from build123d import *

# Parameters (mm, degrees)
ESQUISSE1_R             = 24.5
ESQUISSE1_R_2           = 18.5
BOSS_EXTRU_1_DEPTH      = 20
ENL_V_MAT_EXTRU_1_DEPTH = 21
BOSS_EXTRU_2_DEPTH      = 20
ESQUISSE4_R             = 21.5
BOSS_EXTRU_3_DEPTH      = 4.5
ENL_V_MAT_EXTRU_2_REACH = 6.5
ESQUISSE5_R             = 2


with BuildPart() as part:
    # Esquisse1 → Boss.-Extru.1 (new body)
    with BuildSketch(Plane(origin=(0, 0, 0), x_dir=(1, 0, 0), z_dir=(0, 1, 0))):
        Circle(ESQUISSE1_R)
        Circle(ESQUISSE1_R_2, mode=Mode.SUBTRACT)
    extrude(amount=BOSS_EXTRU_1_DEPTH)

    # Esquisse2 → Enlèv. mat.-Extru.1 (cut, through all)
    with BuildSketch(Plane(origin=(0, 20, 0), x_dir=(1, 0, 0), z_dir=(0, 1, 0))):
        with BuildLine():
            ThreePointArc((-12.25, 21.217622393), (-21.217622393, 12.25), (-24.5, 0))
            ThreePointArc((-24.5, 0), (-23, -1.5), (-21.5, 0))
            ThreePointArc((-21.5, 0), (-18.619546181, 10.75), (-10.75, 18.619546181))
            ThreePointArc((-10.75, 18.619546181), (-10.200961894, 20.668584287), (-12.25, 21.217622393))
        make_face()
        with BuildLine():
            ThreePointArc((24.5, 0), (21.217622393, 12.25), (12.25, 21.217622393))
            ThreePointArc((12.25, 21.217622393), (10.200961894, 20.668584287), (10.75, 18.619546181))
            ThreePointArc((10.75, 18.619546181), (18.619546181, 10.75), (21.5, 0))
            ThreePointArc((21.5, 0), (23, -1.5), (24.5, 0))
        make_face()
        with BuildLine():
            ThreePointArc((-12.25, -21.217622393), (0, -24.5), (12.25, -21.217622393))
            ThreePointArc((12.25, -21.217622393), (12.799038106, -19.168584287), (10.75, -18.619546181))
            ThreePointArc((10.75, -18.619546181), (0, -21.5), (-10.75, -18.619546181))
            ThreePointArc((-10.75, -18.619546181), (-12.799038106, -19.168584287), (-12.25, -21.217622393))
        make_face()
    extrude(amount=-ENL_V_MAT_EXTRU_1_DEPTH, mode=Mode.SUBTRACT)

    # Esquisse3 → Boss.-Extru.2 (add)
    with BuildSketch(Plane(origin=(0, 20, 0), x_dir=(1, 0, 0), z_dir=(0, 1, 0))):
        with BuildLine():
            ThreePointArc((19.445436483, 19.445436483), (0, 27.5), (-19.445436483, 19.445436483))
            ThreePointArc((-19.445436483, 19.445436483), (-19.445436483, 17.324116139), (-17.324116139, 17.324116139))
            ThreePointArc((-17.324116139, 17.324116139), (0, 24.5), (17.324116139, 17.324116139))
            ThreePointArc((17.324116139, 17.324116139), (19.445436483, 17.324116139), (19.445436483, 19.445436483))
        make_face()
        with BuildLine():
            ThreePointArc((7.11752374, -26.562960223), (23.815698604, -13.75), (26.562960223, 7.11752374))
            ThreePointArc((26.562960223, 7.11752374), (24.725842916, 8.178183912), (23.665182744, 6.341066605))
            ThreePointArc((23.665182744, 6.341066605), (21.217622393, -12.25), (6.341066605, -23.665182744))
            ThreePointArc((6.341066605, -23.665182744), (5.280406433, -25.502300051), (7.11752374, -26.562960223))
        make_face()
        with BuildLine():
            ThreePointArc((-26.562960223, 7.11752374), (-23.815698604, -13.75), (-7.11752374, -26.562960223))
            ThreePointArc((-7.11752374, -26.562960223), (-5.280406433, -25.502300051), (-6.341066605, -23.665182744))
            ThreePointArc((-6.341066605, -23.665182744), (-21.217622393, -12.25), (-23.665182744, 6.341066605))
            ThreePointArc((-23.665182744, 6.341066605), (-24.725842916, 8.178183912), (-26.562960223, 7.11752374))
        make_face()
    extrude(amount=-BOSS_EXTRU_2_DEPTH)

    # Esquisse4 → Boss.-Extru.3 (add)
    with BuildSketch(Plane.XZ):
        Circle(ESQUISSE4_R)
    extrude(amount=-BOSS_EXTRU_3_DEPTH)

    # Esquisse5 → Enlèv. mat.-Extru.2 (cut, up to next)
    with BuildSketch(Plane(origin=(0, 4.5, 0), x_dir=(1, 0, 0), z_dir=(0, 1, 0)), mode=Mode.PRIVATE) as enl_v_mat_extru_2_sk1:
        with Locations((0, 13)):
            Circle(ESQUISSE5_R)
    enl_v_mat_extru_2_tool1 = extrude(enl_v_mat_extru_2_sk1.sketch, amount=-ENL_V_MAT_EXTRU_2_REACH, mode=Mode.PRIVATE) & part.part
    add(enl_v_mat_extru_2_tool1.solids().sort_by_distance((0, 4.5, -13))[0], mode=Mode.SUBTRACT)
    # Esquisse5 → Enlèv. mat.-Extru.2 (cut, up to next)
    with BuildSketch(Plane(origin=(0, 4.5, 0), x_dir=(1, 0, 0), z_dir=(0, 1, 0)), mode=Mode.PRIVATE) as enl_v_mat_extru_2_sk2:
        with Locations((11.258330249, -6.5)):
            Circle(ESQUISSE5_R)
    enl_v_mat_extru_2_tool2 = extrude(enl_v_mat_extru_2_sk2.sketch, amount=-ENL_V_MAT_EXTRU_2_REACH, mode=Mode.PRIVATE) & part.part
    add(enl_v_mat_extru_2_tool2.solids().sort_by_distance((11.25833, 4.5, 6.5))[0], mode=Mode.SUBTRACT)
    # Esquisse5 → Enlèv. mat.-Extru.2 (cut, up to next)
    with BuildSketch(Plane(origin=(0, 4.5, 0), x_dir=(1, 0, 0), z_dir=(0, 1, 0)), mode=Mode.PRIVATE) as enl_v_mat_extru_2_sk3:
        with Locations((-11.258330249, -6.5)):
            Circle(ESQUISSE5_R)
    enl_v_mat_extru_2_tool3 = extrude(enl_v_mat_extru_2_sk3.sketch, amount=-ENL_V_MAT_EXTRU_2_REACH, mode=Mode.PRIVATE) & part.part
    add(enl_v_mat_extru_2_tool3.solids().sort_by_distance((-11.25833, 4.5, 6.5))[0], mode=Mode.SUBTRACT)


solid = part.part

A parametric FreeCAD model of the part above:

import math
import FreeCAD as App
import Part
import Sketcher
Q = App.Units.Quantity

doc = App.newDocument("Part")
params = doc.addObject("Spreadsheet::Sheet", "Params")
for row, (alias, value) in enumerate([
    ("sketch1_diameter", "49 mm"),
    ("sketch1_diameter2", "37 mm"),
    ("pad1_length", "20 mm"),
    ("sketch2_radius", "24.5 mm"),
    ("sketch2_radius2", "1.5 mm"),
    ("sketch3_radius", "27.5 mm"),
    ("sketch3_radius2", "1.5 mm"),
    ("pad2_length", "20 mm"),
    ("sketch4_diameter", "43 mm"),
    ("pad3_length", "4.5 mm"),
    ("sketch5_diameter", "4 mm"),
    ("sketch6_diameter", "4 mm"),
    ("sketch7_diameter", "4 mm"),
], start=1):
    params.set(f"A{row}", alias)
    params.set(f"B{row}", "=" + value)
    params.setAlias(f"B{row}", alias)

body = doc.addObject("PartDesign::Body", "Body")

# Sketch on XZ plane
sketch1 = body.newObject("Sketcher::SketchObject", "Sketch")
sketch1.AttachmentSupport = (doc.getObject("XZ_Plane"), [""])
sketch1.MapMode = "FlatFace"
sketch1.addGeometry(Part.Circle(App.Vector(0, 0, 0), App.Vector(0, 0, 1), 24), False)
sketch1.addGeometry(Part.Circle(App.Vector(0, 0, 0), App.Vector(0, 0, 1), 18), False)
sketch1.addConstraint(Sketcher.Constraint("Coincident", 0, 3, -1, 1))
sketch1.addConstraint(Sketcher.Constraint("Coincident", 1, 3, -1, 1))
sketch1.addConstraint(Sketcher.Constraint("Diameter", 0, Q("49 mm")))
sketch1.addConstraint(Sketcher.Constraint("Diameter", 1, Q("37 mm")))
sketch1.setExpression("Constraints[2]", "Params.sketch1_diameter")
sketch1.setExpression("Constraints[3]", "Params.sketch1_diameter2")
pad1 = body.newObject("PartDesign::Pad", "Pad")
pad1.Profile = sketch1
pad1.setExpression("Length", "Params.pad1_length")
pad1.Reversed = True

# Sketch on XZ plane
sketch2 = body.newObject("Sketcher::SketchObject", "Sketch001")
sketch2.AttachmentSupport = (doc.getObject("XZ_Plane"), [""])
sketch2.MapMode = "FlatFace"
sketch2.AttachmentOffset = App.Placement(App.Vector(0, 0, -20), App.Rotation())
sketch2.addGeometry(Part.ArcOfCircle(Part.Circle(App.Vector(0, 0, 0), App.Vector(0, 0, 1), 24.5), math.radians(180), math.radians(240)), False)
sketch2.addGeometry(Part.ArcOfCircle(Part.Circle(App.Vector(-23, 0, 0), App.Vector(0, 0, 1), 1.5), math.radians(0), math.radians(180)), False)
sketch2.addGeometry(Part.ArcOfCircle(Part.Circle(App.Vector(0, 0, 0), App.Vector(0, 0, 1), 21.5), math.radians(-180), math.radians(-120)), False)
sketch2.addGeometry(Part.ArcOfCircle(Part.Circle(App.Vector(-11.5, -19.9, 0), App.Vector(0, 0, 1), 1.5), math.radians(-120), math.radians(60)), False)
sketch2.addGeometry(Part.ArcOfCircle(Part.Circle(App.Vector(0, 0, 0), App.Vector(0, 0, 1), 24.5), math.radians(-60), math.radians(0)), False)
sketch2.addGeometry(Part.ArcOfCircle(Part.Circle(App.Vector(11.5, -19.9, 0), App.Vector(0, 0, 1), 1.5), math.radians(120), math.radians(300)), False)
sketch2.addGeometry(Part.ArcOfCircle(Part.Circle(App.Vector(0, 0, 0), App.Vector(0, 0, 1), 21.5), math.radians(-60), math.radians(0)), False)
sketch2.addGeometry(Part.ArcOfCircle(Part.Circle(App.Vector(23, 0, 0), App.Vector(0, 0, 1), 1.5), math.radians(0), math.radians(180)), False)
sketch2.addGeometry(Part.ArcOfCircle(Part.Circle(App.Vector(0, 0, 0), App.Vector(0, 0, 1), 24.5), math.radians(60), math.radians(120)), False)
sketch2.addGeometry(Part.ArcOfCircle(Part.Circle(App.Vector(11.5, 19.9, 0), App.Vector(0, 0, 1), 1.5), math.radians(-120), math.radians(60)), False)
sketch2.addGeometry(Part.ArcOfCircle(Part.Circle(App.Vector(0, 0, 0), App.Vector(0, 0, 1), 21.5), math.radians(60), math.radians(120)), False)
sketch2.addGeometry(Part.ArcOfCircle(Part.Circle(App.Vector(-11.5, 19.9, 0), App.Vector(0, 0, 1), 1.5), math.radians(120), math.radians(300)), False)
sketch2.addConstraint(Sketcher.Constraint("Tangent", 0, 1, 1, 2))
sketch2.addConstraint(Sketcher.Constraint("Tangent", 1, 1, 2, 1))
sketch2.addConstraint(Sketcher.Constraint("Tangent", 2, 2, 3, 2))
sketch2.addConstraint(Sketcher.Constraint("Tangent", 3, 1, 0, 2))
sketch2.addConstraint(Sketcher.Constraint("Tangent", 4, 1, 5, 2))
sketch2.addConstraint(Sketcher.Constraint("Tangent", 5, 1, 6, 1))
sketch2.addConstraint(Sketcher.Constraint("Tangent", 6, 2, 7, 2))
sketch2.addConstraint(Sketcher.Constraint("Tangent", 7, 1, 4, 2))
sketch2.addConstraint(Sketcher.Constraint("Tangent", 8, 1, 9, 2))
sketch2.addConstraint(Sketcher.Constraint("Tangent", 9, 1, 10, 1))
sketch2.addConstraint(Sketcher.Constraint("Tangent", 10, 2, 11, 2))
sketch2.addConstraint(Sketcher.Constraint("Tangent", 11, 1, 8, 2))
sketch2.addConstraint(Sketcher.Constraint("Coincident", 0, 3, -1, 1))
sketch2.addConstraint(Sketcher.Constraint("Coincident", 2, 3, -1, 1))
sketch2.addConstraint(Sketcher.Constraint("Coincident", 4, 3, -1, 1))
sketch2.addConstraint(Sketcher.Constraint("Coincident", 6, 3, -1, 1))
sketch2.addConstraint(Sketcher.Constraint("Coincident", 8, 3, -1, 1))
sketch2.addConstraint(Sketcher.Constraint("Coincident", 10, 3, -1, 1))
sketch2.addConstraint(Sketcher.Constraint("Equal", 0, 4))
sketch2.addConstraint(Sketcher.Constraint("Equal", 3, 5))
sketch2.addConstraint(Sketcher.Constraint("Equal", 4, 8))
sketch2.addConstraint(Sketcher.Constraint("Equal", 7, 9))
sketch2.addConstraint(Sketcher.Constraint("PointOnObject", 1, 3, -1))
sketch2.addConstraint(Sketcher.Constraint("PointOnObject", 7, 3, -1))
sketch2.addConstraint(Sketcher.Constraint("Horizontal", 3, 3, 5, 3))
sketch2.addConstraint(Sketcher.Constraint("Horizontal", 9, 3, 11, 3))
sketch2.addConstraint(Sketcher.Constraint("Vertical", 5, 3, 9, 3))
sketch2.addConstraint(Sketcher.Constraint("Radius", 0, Q("24.5 mm")))
sketch2.addConstraint(Sketcher.Constraint("Radius", 1, Q("1.5 mm")))
sketch2.addConstraint(Sketcher.Constraint("DistanceX", 3, 3, 5, 3, Q("23 mm")))
sketch2.setExpression("Constraints[27]", "Params.sketch2_radius")
sketch2.setExpression("Constraints[28]", "Params.sketch2_radius2")
pocket1 = body.newObject("PartDesign::Pocket", "Pocket")
pocket1.Profile = sketch2
pocket1.Type = "ThroughAll"
pocket1.Reversed = True

# Sketch on XZ plane
sketch3 = body.newObject("Sketcher::SketchObject", "Sketch002")
sketch3.AttachmentSupport = (doc.getObject("XZ_Plane"), [""])
sketch3.MapMode = "FlatFace"
sketch3.AttachmentOffset = App.Placement(App.Vector(0, 0, -20), App.Rotation())
sketch3.addGeometry(Part.ArcOfCircle(Part.Circle(App.Vector(0, 0, 0), App.Vector(0, 0, 1), 27.5), math.radians(-135), math.radians(-45)), False)
sketch3.addGeometry(Part.ArcOfCircle(Part.Circle(App.Vector(-18.4, -18.4, 0), App.Vector(0, 0, 1), 1.5), math.radians(45), math.radians(225)), False)
sketch3.addGeometry(Part.ArcOfCircle(Part.Circle(App.Vector(0, 0, 0), App.Vector(0, 0, 1), 24.5), math.radians(-135), math.radians(-45)), False)
sketch3.addGeometry(Part.ArcOfCircle(Part.Circle(App.Vector(18.4, -18.4, 0), App.Vector(0, 0, 1), 1.5), math.radians(-45), math.radians(135)), False)
sketch3.addGeometry(Part.ArcOfCircle(Part.Circle(App.Vector(0, 0, 0), App.Vector(0, 0, 1), 27.5), math.radians(-15), math.radians(75)), False)
sketch3.addGeometry(Part.ArcOfCircle(Part.Circle(App.Vector(25.1, -6.7, 0), App.Vector(0, 0, 1), 1.5), math.radians(165), math.radians(345)), False)
sketch3.addGeometry(Part.ArcOfCircle(Part.Circle(App.Vector(0, 0, 0), App.Vector(0, 0, 1), 24.5), math.radians(-15), math.radians(75)), False)
sketch3.addGeometry(Part.ArcOfCircle(Part.Circle(App.Vector(6.7, 25.1, 0), App.Vector(0, 0, 1), 1.5), math.radians(75), math.radians(255)), False)
sketch3.addGeometry(Part.ArcOfCircle(Part.Circle(App.Vector(0, 0, 0), App.Vector(0, 0, 1), 27.5), math.radians(105), math.radians(195)), False)
sketch3.addGeometry(Part.ArcOfCircle(Part.Circle(App.Vector(-6.7, 25.1, 0), App.Vector(0, 0, 1), 1.5), math.radians(-75), math.radians(105)), False)
sketch3.addGeometry(Part.ArcOfCircle(Part.Circle(App.Vector(0, 0, 0), App.Vector(0, 0, 1), 24.5), math.radians(105), math.radians(195)), False)
sketch3.addGeometry(Part.ArcOfCircle(Part.Circle(App.Vector(-25.1, -6.7, 0), App.Vector(0, 0, 1), 1.5), math.radians(-165), math.radians(15)), False)
sketch3.addConstraint(Sketcher.Constraint("Tangent", 0, 1, 1, 2))
sketch3.addConstraint(Sketcher.Constraint("Tangent", 1, 1, 2, 1))
sketch3.addConstraint(Sketcher.Constraint("Tangent", 2, 2, 3, 2))
sketch3.addConstraint(Sketcher.Constraint("Tangent", 3, 1, 0, 2))
sketch3.addConstraint(Sketcher.Constraint("Tangent", 4, 1, 5, 2))
sketch3.addConstraint(Sketcher.Constraint("Tangent", 5, 1, 6, 1))
sketch3.addConstraint(Sketcher.Constraint("Tangent", 6, 2, 7, 2))
sketch3.addConstraint(Sketcher.Constraint("Tangent", 7, 1, 4, 2))
sketch3.addConstraint(Sketcher.Constraint("Tangent", 8, 1, 9, 2))
sketch3.addConstraint(Sketcher.Constraint("Tangent", 9, 1, 10, 1))
sketch3.addConstraint(Sketcher.Constraint("Tangent", 10, 2, 11, 2))
sketch3.addConstraint(Sketcher.Constraint("Tangent", 11, 1, 8, 2))
sketch3.addConstraint(Sketcher.Constraint("Coincident", 0, 3, -1, 1))
sketch3.addConstraint(Sketcher.Constraint("Coincident", 2, 3, -1, 1))
sketch3.addConstraint(Sketcher.Constraint("Coincident", 4, 3, -1, 1))
sketch3.addConstraint(Sketcher.Constraint("Coincident", 6, 3, -1, 1))
sketch3.addConstraint(Sketcher.Constraint("Coincident", 8, 3, -1, 1))
sketch3.addConstraint(Sketcher.Constraint("Coincident", 10, 3, -1, 1))
sketch3.addConstraint(Sketcher.Constraint("Equal", 0, 4))
sketch3.addConstraint(Sketcher.Constraint("Equal", 3, 5))
sketch3.addConstraint(Sketcher.Constraint("Equal", 4, 8))
sketch3.addConstraint(Sketcher.Constraint("Equal", 7, 9))
sketch3.addConstraint(Sketcher.Constraint("Horizontal", 1, 3, 3, 3))
sketch3.addConstraint(Sketcher.Constraint("Horizontal", 7, 3, 9, 3))
sketch3.addConstraint(Sketcher.Constraint("Horizontal", 5, 3, 11, 3))
sketch3.addConstraint(Sketcher.Constraint("Radius", 0, Q("27.5 mm")))
sketch3.addConstraint(Sketcher.Constraint("Radius", 1, Q("1.5 mm")))
sketch3.addConstraint(Sketcher.Constraint("DistanceX", -1, 1, 5, 3, Q("25.114071 mm")))
sketch3.addConstraint(Sketcher.Constraint("DistanceY", -1, 1, 7, 3, Q("25.114071 mm")))
sketch3.addConstraint(Sketcher.Constraint("DistanceY", 3, 3, 5, 3, Q("11.655481 mm")))
sketch3.setExpression("Constraints[25]", "Params.sketch3_radius")
sketch3.setExpression("Constraints[26]", "Params.sketch3_radius2")
pad2 = body.newObject("PartDesign::Pad", "Pad001")
pad2.Profile = sketch3
pad2.setExpression("Length", "Params.pad2_length")

# Sketch on XZ plane
sketch4 = body.newObject("Sketcher::SketchObject", "Sketch003")
sketch4.AttachmentSupport = (doc.getObject("XZ_Plane"), [""])
sketch4.MapMode = "FlatFace"
sketch4.addGeometry(Part.Circle(App.Vector(0, 0, 0), App.Vector(0, 0, 1), 22), False)
sketch4.addConstraint(Sketcher.Constraint("Coincident", 0, 3, -1, 1))
sketch4.addConstraint(Sketcher.Constraint("Diameter", 0, Q("43 mm")))
sketch4.setExpression("Constraints[1]", "Params.sketch4_diameter")
pad3 = body.newObject("PartDesign::Pad", "Pad002")
pad3.Profile = sketch4
pad3.setExpression("Length", "Params.pad3_length")
pad3.Reversed = True

# Sketch on XZ plane
sketch5 = body.newObject("Sketcher::SketchObject", "Sketch004")
sketch5.AttachmentSupport = (doc.getObject("XZ_Plane"), [""])
sketch5.MapMode = "FlatFace"
sketch5.AttachmentOffset = App.Placement(App.Vector(0, 0, -4.5), App.Rotation())
sketch5.addGeometry(Part.Circle(App.Vector(0, -13, 0), App.Vector(0, 0, 1), 2), False)
sketch5.addConstraint(Sketcher.Constraint("PointOnObject", 0, 3, -2))
sketch5.addConstraint(Sketcher.Constraint("Diameter", 0, Q("4 mm")))
sketch5.addConstraint(Sketcher.Constraint("DistanceY", 0, 3, -1, 1, Q("13 mm")))
sketch5.setExpression("Constraints[1]", "Params.sketch5_diameter")
pocket2 = body.newObject("PartDesign::Pocket", "Pocket001")
pocket2.Profile = sketch5
pocket2.Type = "UpToFirst"
pocket2.Reversed = True

# Sketch on XZ plane
sketch6 = body.newObject("Sketcher::SketchObject", "Sketch005")
sketch6.AttachmentSupport = (doc.getObject("XZ_Plane"), [""])
sketch6.MapMode = "FlatFace"
sketch6.AttachmentOffset = App.Placement(App.Vector(0, 0, -4.5), App.Rotation())
sketch6.addGeometry(Part.Circle(App.Vector(11.3, 6.5, 0), App.Vector(0, 0, 1), 2), False)
sketch6.addConstraint(Sketcher.Constraint("Diameter", 0, Q("4 mm")))
sketch6.addConstraint(Sketcher.Constraint("DistanceY", -1, 1, 0, 3, Q("6.5 mm")))
sketch6.addConstraint(Sketcher.Constraint("DistanceX", -1, 1, 0, 3, Q("11.25833 mm")))
sketch6.setExpression("Constraints[0]", "Params.sketch6_diameter")
pocket3 = body.newObject("PartDesign::Pocket", "Pocket002")
pocket3.Profile = sketch6
pocket3.Type = "UpToFirst"
pocket3.Reversed = True

# Sketch on XZ plane
sketch7 = body.newObject("Sketcher::SketchObject", "Sketch006")
sketch7.AttachmentSupport = (doc.getObject("XZ_Plane"), [""])
sketch7.MapMode = "FlatFace"
sketch7.AttachmentOffset = App.Placement(App.Vector(0, 0, -4.5), App.Rotation())
sketch7.addGeometry(Part.Circle(App.Vector(-11.3, 6.5, 0), App.Vector(0, 0, 1), 2), False)
sketch7.addConstraint(Sketcher.Constraint("Diameter", 0, Q("4 mm")))
sketch7.addConstraint(Sketcher.Constraint("DistanceY", -1, 1, 0, 3, Q("6.5 mm")))
sketch7.addConstraint(Sketcher.Constraint("DistanceX", 0, 3, -1, 1, Q("11.25833 mm")))
sketch7.setExpression("Constraints[0]", "Params.sketch7_diameter")
pocket4 = body.newObject("PartDesign::Pocket", "Pocket003")
pocket4.Profile = sketch7
pocket4.Type = "UpToFirst"
pocket4.Reversed = True

doc.recompute()
